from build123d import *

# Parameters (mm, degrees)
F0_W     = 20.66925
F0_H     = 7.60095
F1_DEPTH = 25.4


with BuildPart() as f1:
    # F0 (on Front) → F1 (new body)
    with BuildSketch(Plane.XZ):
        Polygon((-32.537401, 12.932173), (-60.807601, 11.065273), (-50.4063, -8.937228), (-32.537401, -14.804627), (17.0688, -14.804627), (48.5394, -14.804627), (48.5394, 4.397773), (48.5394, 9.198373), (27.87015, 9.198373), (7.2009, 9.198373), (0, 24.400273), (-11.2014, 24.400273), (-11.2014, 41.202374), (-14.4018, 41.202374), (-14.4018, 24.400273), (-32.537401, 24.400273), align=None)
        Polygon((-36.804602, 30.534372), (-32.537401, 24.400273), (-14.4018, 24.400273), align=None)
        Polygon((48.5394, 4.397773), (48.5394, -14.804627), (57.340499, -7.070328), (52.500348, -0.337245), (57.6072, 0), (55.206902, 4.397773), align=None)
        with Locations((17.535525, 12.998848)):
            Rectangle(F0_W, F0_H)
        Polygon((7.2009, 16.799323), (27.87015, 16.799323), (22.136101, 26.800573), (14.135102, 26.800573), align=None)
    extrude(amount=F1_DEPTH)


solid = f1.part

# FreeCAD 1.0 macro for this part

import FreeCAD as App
import Part
import Sketcher
Q = App.Units.Quantity

doc = App.newDocument("Part")
body = doc.addObject("PartDesign::Body", "Body")

# Sketch on XZ plane
sketch1 = body.newObject("Sketcher::SketchObject", "Sketch")
sketch1.AttachmentSupport = (doc.getObject("XZ_Plane"), [""])
sketch1.MapMode = "FlatFace"
sketch1.addGeometry([
    Part.LineSegment(App.Vector(-32.5, 12.9, 0), App.Vector(-60.8, 11.1, 0)),  # 0
    Part.LineSegment(App.Vector(-60.8, 11.1, 0), App.Vector(-50.4, -8.9, 0)),  # 1
    Part.LineSegment(App.Vector(-50.4, -8.9, 0), App.Vector(-32.5, -14.8, 0)),  # 2
    Part.LineSegment(App.Vector(-32.5, -14.8, 0), App.Vector(48.5, -14.8, 0)),  # 3
    Part.LineSegment(App.Vector(48.5, -14.8, 0), App.Vector(57.3, -7.1, 0)),  # 4
    Part.LineSegment(App.Vector(57.3, -7.1, 0), App.Vector(52.5, -0.3, 0)),  # 5
    Part.LineSegment(App.Vector(52.5, -0.3, 0), App.Vector(57.6, 0, 0)),  # 6
    Part.LineSegment(App.Vector(57.6, 0, 0), App.Vector(55.2, 4.4, 0)),  # 7
    Part.LineSegment(App.Vector(55.2, 4.4, 0), App.Vector(48.5, 4.4, 0)),  # 8
    Part.LineSegment(App.Vector(48.5, 4.4, 0), App.Vector(48.5, 9.2, 0)),  # 9
    Part.LineSegment(App.Vector(48.5, 9.2, 0), App.Vector(27.9, 9.2, 0)),  # 10
    Part.LineSegment(App.Vector(27.9, 9.2, 0), App.Vector(27.9, 16.8, 0)),  # 11
    Part.LineSegment(App.Vector(27.9, 16.8, 0), App.Vector(22.1, 26.8, 0)),  # 12
    Part.LineSegment(App.Vector(22.1, 26.8, 0), App.Vector(14.1, 26.8, 0)),  # 13
    Part.LineSegment(App.Vector(14.1, 26.8, 0), App.Vector(7.2, 16.8, 0)),  # 14
    Part.LineSegment(App.Vector(7.2, 16.8, 0), App.Vector(7.2, 9.2, 0)),  # 15
    Part.LineSegment(App.Vector(7.2, 9.2, 0), App.Vector(0, 24.4, 0)),  # 16
    Part.LineSegment(App.Vector(0, 24.4, 0), App.Vector(-11.2, 24.4, 0)),  # 17
    Part.LineSegment(App.Vector(-11.2, 24.4, 0), App.Vector(-11.2, 41.2, 0)),  # 18
    Part.LineSegment(App.Vector(-11.2, 41.2, 0), App.Vector(-14.4, 41.2, 0)),  # 19
    Part.LineSegment(App.Vector(-14.4, 41.2, 0), App.Vector(-14.4, 24.4, 0)),  # 20
    Part.LineSegment(App.Vector(-14.4, 24.4, 0), App.Vector(-36.8, 30.5, 0)),  # 21
    Part.LineSegment(App.Vector(-36.8, 30.5, 0), App.Vector(-32.5, 24.4, 0)),  # 22
    Part.LineSegment(App.Vector(-32.5, 24.4, 0), App.Vector(-32.5, 12.9, 0)),  # 23
], False)
sketch1.addConstraint([
    Sketcher.Constraint("Coincident", 0, 2, 1, 1),
    Sketcher.Constraint("Coincident", 1, 2, 2, 1),
    Sketcher.Constraint("Coincident", 2, 2, 3, 1),
    Sketcher.Constraint("Coincident", 3, 2, 4, 1),
    Sketcher.Constraint("Coincident", 4, 2, 5, 1),
    Sketcher.Constraint("Coincident", 5, 2, 6, 1),
    Sketcher.Constraint("Coincident", 6, 2, 7, 1),
    Sketcher.Constraint("Coincident", 7, 2, 8, 1),
    Sketcher.Constraint("Coincident", 8, 2, 9, 1),
    Sketcher.Constraint("Coincident", 9, 2, 10, 1),
    Sketcher.Constraint("Coincident", 10, 2, 11, 1),
    Sketcher.Constraint("Coincident", 11, 2, 12, 1),
    Sketcher.Constraint("Coincident", 12, 2, 13, 1),
    Sketcher.Constraint("Coincident", 13, 2, 14, 1),
    Sketcher.Constraint("Coincident", 14, 2, 15, 1),
    Sketcher.Constraint("Coincident", 15, 2, 16, 1),
    Sketcher.Constraint("Coincident", 16, 2, 17, 1),
    Sketcher.Constraint("Coincident", 17, 2, 18, 1),
    Sketcher.Constraint("Coincident", 18, 2, 19, 1),
    Sketcher.Constraint("Coincident", 19, 2, 20, 1),
    Sketcher.Constraint("Coincident", 20, 2, 21, 1),
    Sketcher.Constraint("Coincident", 21, 2, 22, 1),
    Sketcher.Constraint("Coincident", 22, 2, 23, 1),
    Sketcher.Constraint("Coincident", 23, 2, 0, 1),
    Sketcher.Constraint("Horizontal", 3),
    Sketcher.Constraint("Horizontal", 8),
    Sketcher.Constraint("Vertical", 9),
    Sketcher.Constraint("Horizontal", 10),
    Sketcher.Constraint("Vertical", 11),
    Sketcher.Constraint("Horizontal", 13),
    Sketcher.Constraint("Vertical", 15),
    Sketcher.Constraint("Horizontal", 17),
    Sketcher.Constraint("Vertical", 18),
    Sketcher.Constraint("Horizontal", 19),
    Sketcher.Constraint("Vertical", 20),
    Sketcher.Constraint("Vertical", 23),
    Sketcher.Constraint("PointOnObject", 6, 2, -1),
    Sketcher.Constraint("PointOnObject", 16, 2, -2),
    Sketcher.Constraint("Parallel", 0, 6),
    Sketcher.Constraint("Horizontal", 11, 2, 14, 2),
    Sketcher.Constraint("Horizontal", 10, 2, 15, 2),
    Sketcher.Constraint("Horizontal", 17, 2, 20, 2),
    Sketcher.Constraint("Horizontal", 20, 2, 22, 2),
    Sketcher.Constraint("Vertical", 3, 2, 8, 2),
    Sketcher.Constraint("Vertical", 2, 2, 22, 2),
    Sketcher.Constraint("DistanceX", 3, 1, 3, 2, Q("3.192 in")),
    Sketcher.Constraint("DistanceX", 13, 2, 13, 1, Q("0.315 in")),
    Sketcher.Constraint("DistanceX", 17, 2, 17, 1, Q("0.441 in")),
    Sketcher.Constraint("DistanceX", 19, 2, 19, 1, Q("0.126 in")),
    Sketcher.Constraint("DistanceY", 9, 1, 9, 2, Q("0.189 in")),
    Sketcher.Constraint("DistanceY", 21, 2, 19, 2, Q("0.4200001 in")),
    Sketcher.Constraint("DistanceX", 22, 2, 17, 2, Q("0.84 in")),
    Sketcher.Constraint("DistanceX", 8, 2, 8, 1, Q("0.2625001 in")),
    Sketcher.Constraint("DistanceY", 18, 1, 18, 2, Q("0.6615 in")),
    Sketcher.Constraint("DistanceY", 23, 2, 23, 1, Q("0.4515 in")),
    Sketcher.Constraint("DistanceX", 0, 2, -1, 1, Q("2.394 in")),
    Sketcher.Constraint("DistanceX", -1, 1, 6, 2, Q("2.268 in")),
    Sketcher.Constraint("DistanceX", 21, 2, -1, 1, Q("1.4490001 in")),
    Sketcher.Constraint("DistanceY", 2, 2, 1, 2, Q("0.231 in")),
    Sketcher.Constraint("DistanceX", 1, 2, 4, 2, Q("4.242 in")),
    Sketcher.Constraint("DistanceY", 4, 2, 0, 2, Q("0.714 in")),
    Sketcher.Constraint("DistanceX", 7, 2, 4, 2, Q("0.0839999 in")),
    Sketcher.Constraint("DistanceY", 3, 2, 7, 2, Q("0.756 in")),
    Sketcher.Constraint("DistanceY", 10, 2, 12, 2, Q("0.693 in")),
    Sketcher.Constraint("DistanceX", 12, 2, 7, 2, Q("1.302 in")),
    Sketcher.Constraint("DistanceX", 14, 2, 13, 2, Q("0.2730001 in")),
    Sketcher.Constraint("DistanceY", 13, 2, 18, 2, Q("0.567 in")),
    Sketcher.Constraint("DistanceY", 1, 2, 0, 2, Q("0.7875 in")),
    Sketcher.Constraint("DistanceX", 10, 2, 10, 1, 20.66925),
    Sketcher.Constraint("DistanceY", 11, 1, 11, 2, 7.60095),
    Sketcher.Constraint("DistanceX", 10, 2, 5, 2, 24.630198),
    Sketcher.Constraint("DistanceY", 5, 2, 7, 2, 4.735018),
])
pad1 = body.newObject("PartDesign::Pad", "Pad")
pad1.Profile = sketch1
pad1.Length = Q("1 in")

doc.recompute()
